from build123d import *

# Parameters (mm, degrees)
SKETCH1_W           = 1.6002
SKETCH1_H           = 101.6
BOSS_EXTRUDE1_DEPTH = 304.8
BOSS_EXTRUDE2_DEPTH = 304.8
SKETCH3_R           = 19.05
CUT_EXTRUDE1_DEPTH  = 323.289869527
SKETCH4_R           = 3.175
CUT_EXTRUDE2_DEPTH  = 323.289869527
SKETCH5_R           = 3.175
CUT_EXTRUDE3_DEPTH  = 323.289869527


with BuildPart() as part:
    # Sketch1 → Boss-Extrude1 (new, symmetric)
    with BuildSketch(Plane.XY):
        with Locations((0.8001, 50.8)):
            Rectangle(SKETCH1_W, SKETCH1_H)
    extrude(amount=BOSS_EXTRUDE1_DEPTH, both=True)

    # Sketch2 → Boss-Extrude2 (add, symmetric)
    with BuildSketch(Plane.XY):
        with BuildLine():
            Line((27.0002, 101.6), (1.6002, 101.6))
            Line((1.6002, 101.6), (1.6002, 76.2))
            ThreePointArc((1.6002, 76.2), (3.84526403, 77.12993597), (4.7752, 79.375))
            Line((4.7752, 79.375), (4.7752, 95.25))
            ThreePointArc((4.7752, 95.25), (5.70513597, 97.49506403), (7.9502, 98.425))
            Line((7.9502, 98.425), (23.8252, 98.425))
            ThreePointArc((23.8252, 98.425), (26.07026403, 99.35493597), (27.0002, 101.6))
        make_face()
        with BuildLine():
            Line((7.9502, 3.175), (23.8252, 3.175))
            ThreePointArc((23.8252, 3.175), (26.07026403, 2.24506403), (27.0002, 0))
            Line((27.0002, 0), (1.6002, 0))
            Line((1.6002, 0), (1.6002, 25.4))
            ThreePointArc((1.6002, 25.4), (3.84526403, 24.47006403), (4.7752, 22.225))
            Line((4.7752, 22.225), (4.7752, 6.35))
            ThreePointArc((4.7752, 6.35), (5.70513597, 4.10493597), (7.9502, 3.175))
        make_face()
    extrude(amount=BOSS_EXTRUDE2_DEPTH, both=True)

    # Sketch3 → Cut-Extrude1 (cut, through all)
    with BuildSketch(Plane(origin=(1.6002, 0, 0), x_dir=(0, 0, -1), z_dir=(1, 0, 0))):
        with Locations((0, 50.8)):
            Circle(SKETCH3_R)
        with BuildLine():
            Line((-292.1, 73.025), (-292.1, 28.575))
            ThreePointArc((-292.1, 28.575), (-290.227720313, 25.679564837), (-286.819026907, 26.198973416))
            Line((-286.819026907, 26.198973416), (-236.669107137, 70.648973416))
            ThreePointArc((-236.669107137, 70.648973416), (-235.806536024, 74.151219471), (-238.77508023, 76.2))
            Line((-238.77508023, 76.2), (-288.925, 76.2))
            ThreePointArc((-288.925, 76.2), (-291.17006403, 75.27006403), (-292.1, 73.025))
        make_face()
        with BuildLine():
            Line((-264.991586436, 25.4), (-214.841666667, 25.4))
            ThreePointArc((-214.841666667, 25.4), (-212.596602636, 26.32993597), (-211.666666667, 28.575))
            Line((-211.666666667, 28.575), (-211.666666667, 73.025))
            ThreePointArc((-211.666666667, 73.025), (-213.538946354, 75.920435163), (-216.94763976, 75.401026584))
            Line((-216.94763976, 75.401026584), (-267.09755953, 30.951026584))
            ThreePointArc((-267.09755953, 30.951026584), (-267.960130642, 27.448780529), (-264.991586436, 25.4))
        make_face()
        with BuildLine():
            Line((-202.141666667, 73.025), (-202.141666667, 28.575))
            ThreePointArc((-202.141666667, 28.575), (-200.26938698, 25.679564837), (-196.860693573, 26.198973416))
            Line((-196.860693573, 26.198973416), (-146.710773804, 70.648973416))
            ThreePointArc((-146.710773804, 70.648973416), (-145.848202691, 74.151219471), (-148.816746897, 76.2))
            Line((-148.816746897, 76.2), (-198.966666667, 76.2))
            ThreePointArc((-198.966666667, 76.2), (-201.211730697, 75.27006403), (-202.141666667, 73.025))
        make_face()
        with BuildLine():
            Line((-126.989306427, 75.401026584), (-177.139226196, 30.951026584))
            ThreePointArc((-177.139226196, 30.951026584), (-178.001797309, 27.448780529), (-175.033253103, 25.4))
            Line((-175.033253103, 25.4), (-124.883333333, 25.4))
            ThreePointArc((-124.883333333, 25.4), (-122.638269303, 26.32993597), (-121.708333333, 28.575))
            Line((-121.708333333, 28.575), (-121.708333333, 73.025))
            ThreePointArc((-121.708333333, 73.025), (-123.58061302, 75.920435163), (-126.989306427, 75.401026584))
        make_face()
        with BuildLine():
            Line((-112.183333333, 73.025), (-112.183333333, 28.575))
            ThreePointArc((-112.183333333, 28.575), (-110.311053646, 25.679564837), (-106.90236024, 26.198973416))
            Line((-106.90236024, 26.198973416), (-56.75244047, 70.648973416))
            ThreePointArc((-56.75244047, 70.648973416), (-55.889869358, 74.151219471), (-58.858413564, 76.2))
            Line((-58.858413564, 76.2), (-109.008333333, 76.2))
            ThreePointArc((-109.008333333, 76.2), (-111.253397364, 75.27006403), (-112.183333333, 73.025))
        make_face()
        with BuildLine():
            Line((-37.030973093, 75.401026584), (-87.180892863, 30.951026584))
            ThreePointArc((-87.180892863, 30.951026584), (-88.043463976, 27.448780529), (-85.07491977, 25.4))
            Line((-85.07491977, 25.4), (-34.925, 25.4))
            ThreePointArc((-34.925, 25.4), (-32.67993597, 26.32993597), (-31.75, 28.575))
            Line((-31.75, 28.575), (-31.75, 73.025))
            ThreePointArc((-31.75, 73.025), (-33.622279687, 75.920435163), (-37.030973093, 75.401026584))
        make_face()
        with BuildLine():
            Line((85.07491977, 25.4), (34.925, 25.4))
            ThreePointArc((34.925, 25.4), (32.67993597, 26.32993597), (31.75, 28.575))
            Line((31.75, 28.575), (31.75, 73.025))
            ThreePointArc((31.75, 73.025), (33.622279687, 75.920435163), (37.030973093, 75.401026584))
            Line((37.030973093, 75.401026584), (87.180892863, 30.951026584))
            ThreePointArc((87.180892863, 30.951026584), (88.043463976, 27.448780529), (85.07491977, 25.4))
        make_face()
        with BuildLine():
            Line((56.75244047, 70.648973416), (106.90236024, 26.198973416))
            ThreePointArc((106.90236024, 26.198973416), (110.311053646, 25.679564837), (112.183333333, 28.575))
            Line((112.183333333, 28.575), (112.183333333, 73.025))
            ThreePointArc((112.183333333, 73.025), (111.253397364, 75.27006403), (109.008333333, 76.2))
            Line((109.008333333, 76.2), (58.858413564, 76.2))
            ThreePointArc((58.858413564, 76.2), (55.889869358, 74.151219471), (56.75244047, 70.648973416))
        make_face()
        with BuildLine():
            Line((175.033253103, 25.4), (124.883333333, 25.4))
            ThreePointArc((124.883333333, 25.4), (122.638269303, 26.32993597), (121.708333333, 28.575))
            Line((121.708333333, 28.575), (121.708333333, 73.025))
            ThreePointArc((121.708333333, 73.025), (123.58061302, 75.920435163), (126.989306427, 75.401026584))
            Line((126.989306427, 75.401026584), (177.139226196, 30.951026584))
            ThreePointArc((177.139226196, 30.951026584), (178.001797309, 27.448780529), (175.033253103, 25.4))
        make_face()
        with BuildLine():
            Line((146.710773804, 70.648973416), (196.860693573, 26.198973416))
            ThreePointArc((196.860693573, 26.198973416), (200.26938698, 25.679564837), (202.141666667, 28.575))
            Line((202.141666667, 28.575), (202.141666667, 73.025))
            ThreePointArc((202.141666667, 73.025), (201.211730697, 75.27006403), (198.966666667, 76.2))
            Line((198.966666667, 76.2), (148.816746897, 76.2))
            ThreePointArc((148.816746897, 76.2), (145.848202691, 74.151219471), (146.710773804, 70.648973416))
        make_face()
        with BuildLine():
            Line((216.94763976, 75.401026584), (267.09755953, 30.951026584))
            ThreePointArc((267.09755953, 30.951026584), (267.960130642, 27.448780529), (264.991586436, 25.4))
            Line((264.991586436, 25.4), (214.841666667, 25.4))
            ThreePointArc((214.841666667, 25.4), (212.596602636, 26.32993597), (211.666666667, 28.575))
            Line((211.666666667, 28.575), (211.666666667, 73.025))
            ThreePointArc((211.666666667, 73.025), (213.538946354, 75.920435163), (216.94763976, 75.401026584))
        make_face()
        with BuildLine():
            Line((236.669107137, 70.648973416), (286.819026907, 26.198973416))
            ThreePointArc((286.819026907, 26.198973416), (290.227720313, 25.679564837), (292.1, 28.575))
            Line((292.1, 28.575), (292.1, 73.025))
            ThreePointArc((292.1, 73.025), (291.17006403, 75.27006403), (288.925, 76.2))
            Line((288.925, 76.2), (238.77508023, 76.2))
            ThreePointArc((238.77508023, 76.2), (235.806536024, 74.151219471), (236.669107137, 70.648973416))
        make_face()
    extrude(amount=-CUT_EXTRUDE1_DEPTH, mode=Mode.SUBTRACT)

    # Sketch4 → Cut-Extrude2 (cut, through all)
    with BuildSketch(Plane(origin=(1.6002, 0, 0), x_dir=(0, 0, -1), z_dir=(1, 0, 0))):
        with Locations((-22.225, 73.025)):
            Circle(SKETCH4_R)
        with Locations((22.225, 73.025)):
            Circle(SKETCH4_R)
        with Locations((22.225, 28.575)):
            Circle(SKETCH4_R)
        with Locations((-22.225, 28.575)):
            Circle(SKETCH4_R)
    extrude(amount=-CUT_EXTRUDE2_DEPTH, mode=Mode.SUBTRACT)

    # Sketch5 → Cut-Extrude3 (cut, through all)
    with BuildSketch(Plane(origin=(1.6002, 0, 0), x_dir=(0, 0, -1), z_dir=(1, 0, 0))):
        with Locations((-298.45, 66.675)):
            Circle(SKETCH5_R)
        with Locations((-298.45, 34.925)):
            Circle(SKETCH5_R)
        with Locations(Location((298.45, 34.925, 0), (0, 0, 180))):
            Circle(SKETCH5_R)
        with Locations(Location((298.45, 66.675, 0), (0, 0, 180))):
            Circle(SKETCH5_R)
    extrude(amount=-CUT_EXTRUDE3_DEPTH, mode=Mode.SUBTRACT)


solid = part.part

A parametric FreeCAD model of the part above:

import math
import FreeCAD as App
import Part
import Sketcher

V = App.Vector
Q = App.Units.Quantity

doc = App.newDocument("Part")
body = doc.addObject("PartDesign::Body", "Body")

sketch1 = doc.addObject("Sketcher::SketchObject", "Sketch")
body.addObject(sketch1)
sketch1.AttachmentSupport = (doc.XY_Plane, [""])
sketch1.MapMode = "FlatFace"
sketch1.addGeometry(Part.LineSegment(V(0, 101.6, 0), V(0, 0, 0)), False)
sketch1.addGeometry(Part.LineSegment(V(0, 0, 0), V(1.6, 0, 0)), False)
sketch1.addGeometry(Part.LineSegment(V(1.6, 0, 0), V(1.6, 101.6, 0)), False)
sketch1.addGeometry(Part.LineSegment(V(1.6, 101.6, 0), V(0, 101.6, 0)), False)
sketch1.addConstraint(Sketcher.Constraint("Coincident", 0, 2, 1, 1))
sketch1.addConstraint(Sketcher.Constraint("Coincident", 1, 2, 2, 1))
sketch1.addConstraint(Sketcher.Constraint("Coincident", 2, 2, 3, 1))
sketch1.addConstraint(Sketcher.Constraint("Coincident", 3, 2, 0, 1))
sketch1.addConstraint(Sketcher.Constraint("Vertical", 0))
sketch1.addConstraint(Sketcher.Constraint("Horizontal", 1))
sketch1.addConstraint(Sketcher.Constraint("Vertical", 2))
sketch1.addConstraint(Sketcher.Constraint("Horizontal", 3))
sketch1.addConstraint(Sketcher.Constraint("Coincident", 0, 2, -1, 1))
sketch1.addConstraint(Sketcher.Constraint("DistanceY", 0, 2, 0, 1, Q("4 in")))
sketch1.addConstraint(Sketcher.Constraint("DistanceX", 1, 1, 1, 2, Q("0.063 in")))
pad1 = doc.addObject("PartDesign::Pad", "Pad")
body.addObject(pad1)
pad1.Profile = sketch1
pad1.Length = Q("24 in")
pad1.Midplane = True

sketch2 = doc.addObject("Sketcher::SketchObject", "Sketch001")
body.addObject(sketch2)
sketch2.AttachmentSupport = (doc.XY_Plane, [""])
sketch2.MapMode = "FlatFace"
sketch2.addGeometry(Part.LineSegment(V(27, 101.6, 0), V(1.6, 101.6, 0)), False)
sketch2.addGeometry(Part.LineSegment(V(1.6, 101.6, 0), V(1.6, 76.2, 0)), False)
sketch2.addGeometry(Part.ArcOfCircle(Part.Circle(V(1.6, 79.4, 0), V(0, 0, 1), 3.2), math.radians(-90), math.radians(0)), False)
sketch2.addGeometry(Part.LineSegment(V(4.8, 79.4, 0), V(4.8, 95.2, 0)), False)
sketch2.addGeometry(Part.ArcOfCircle(Part.Circle(V(8, 95.2, 0), V(0, 0, 1), 3.2), math.radians(90), math.radians(180)), False)
sketch2.addGeometry(Part.LineSegment(V(8, 98.4, 0), V(23.8, 98.4, 0)), False)
sketch2.addGeometry(Part.ArcOfCircle(Part.Circle(V(23.8, 101.6, 0), V(0, 0, 1), 3.2), math.radians(-90), math.radians(0)), False)
sketch2.addGeometry(Part.LineSegment(V(23.8, 3.2, 0), V(8, 3.2, 0)), False)
sketch2.addGeometry(Part.ArcOfCircle(Part.Circle(V(8, 6.4, 0), V(0, 0, 1), 3.2), math.radians(-180), math.radians(-90)), False)
sketch2.addGeometry(Part.LineSegment(V(4.8, 6.3, 0), V(4.8, 22.2, 0)), False)
sketch2.addGeometry(Part.ArcOfCircle(Part.Circle(V(1.6, 22.2, 0), V(0, 0, 1), 3.2), math.radians(0), math.radians(90)), False)
sketch2.addGeometry(Part.LineSegment(V(1.6, 25.4, 0), V(1.6, 0, 0)), False)
sketch2.addGeometry(Part.LineSegment(V(1.6, 0, 0), V(27, 0, 0)), False)
sketch2.addGeometry(Part.ArcOfCircle(Part.Circle(V(23.8, 0, 0), V(0, 0, 1), 3.2), math.radians(0), math.radians(90)), False)
sketch2.addConstraint(Sketcher.Constraint("Coincident", 0, 2, 1, 1))
sketch2.addConstraint(Sketcher.Constraint("Coincident", 1, 2, 2, 1))
sketch2.addConstraint(Sketcher.Constraint("Tangent", 2, 2, 3, 1))
sketch2.addConstraint(Sketcher.Constraint("Tangent", 3, 2, 4, 2))
sketch2.addConstraint(Sketcher.Constraint("Tangent", 4, 1, 5, 1))
sketch2.addConstraint(Sketcher.Constraint("Tangent", 5, 2, 6, 1))
sketch2.addConstraint(Sketcher.Constraint("Coincident", 6, 2, 0, 1))
sketch2.addConstraint(Sketcher.Constraint("Tangent", 7, 2, 8, 2))
sketch2.addConstraint(Sketcher.Constraint("Tangent", 8, 1, 9, 1))
sketch2.addConstraint(Sketcher.Constraint("Tangent", 9, 2, 10, 1))
sketch2.addConstraint(Sketcher.Constraint("Coincident", 10, 2, 11, 1))
sketch2.addConstraint(Sketcher.Constraint("Coincident", 11, 2, 12, 1))
sketch2.addConstraint(Sketcher.Constraint("Coincident", 12, 2, 13, 1))
sketch2.addConstraint(Sketcher.Constraint("Tangent", 13, 2, 7, 1))
sketch2.addConstraint(Sketcher.Constraint("Horizontal", 0))
sketch2.addConstraint(Sketcher.Constraint("Vertical", 1))
sketch2.addConstraint(Sketcher.Constraint("Vertical", 3))
sketch2.addConstraint(Sketcher.Constraint("Horizontal", 5))
sketch2.addConstraint(Sketcher.Constraint("Horizontal", 7))
sketch2.addConstraint(Sketcher.Constraint("Vertical", 9))
sketch2.addConstraint(Sketcher.Constraint("Vertical", 11))
sketch2.addConstraint(Sketcher.Constraint("Horizontal", 12))
sketch2.addConstraint(Sketcher.Constraint("Equal", 2, 4))
sketch2.addConstraint(Sketcher.Constraint("Equal", 4, 6))
sketch2.addConstraint(Sketcher.Constraint("Equal", 6, 8))
sketch2.addConstraint(Sketcher.Constraint("Equal", 8, 10))
sketch2.addConstraint(Sketcher.Constraint("Equal", 10, 13))
sketch2.addConstraint(Sketcher.Constraint("PointOnObject", 13, 3, -1))
sketch2.addConstraint(Sketcher.Constraint("PointOnObject", 11, 2, -1))
sketch2.addConstraint(Sketcher.Constraint("Horizontal", 6, 3, 0, 2))
sketch2.addConstraint(Sketcher.Constraint("Vertical", 4, 3, 8, 3))
sketch2.addConstraint(Sketcher.Constraint("Vertical", 6, 3, 13, 3))
sketch2.addConstraint(Sketcher.Constraint("Vertical", 10, 3, 0, 2))
sketch2.addConstraint(Sketcher.Constraint("Vertical", 1, 2, 10, 2))
sketch2.addConstraint(Sketcher.Constraint("Equal", 12, 1))
sketch2.addConstraint(Sketcher.Constraint("Equal", 3, 9))
sketch2.addConstraint(Sketcher.Constraint("DistanceX", 0, 2, 0, 1, Q("1 in")))
sketch2.addConstraint(Sketcher.Constraint("DistanceY", -1, 1, 6, 3, Q("4 in")))
sketch2.addConstraint(Sketcher.Constraint("Radius", 2, Q("0.125 in")))
sketch2.addConstraint(Sketcher.Constraint("DistanceX", -1, 1, 2, 3, Q("0.063 in")))
pad2 = doc.addObject("PartDesign::Pad", "Pad001")
body.addObject(pad2)
pad2.Profile = sketch2
pad2.Length = Q("24 in")
pad2.Midplane = True

sketch3 = doc.addObject("Sketcher::SketchObject", "Sketch002")
body.addObject(sketch3)
sketch3.AttachmentSupport = (doc.YZ_Plane, [""])
sketch3.MapMode = "FlatFace"
sketch3.AttachmentOffset = App.Placement(V(0, 0, 0.063 * 25.4), App.Rotation())
sketch3.addGeometry(Part.Circle(V(50.8, 0, 0), V(0, 0, 1), 19.1), False)
sketch3.addGeometry(Part.LineSegment(V(73, 292.1, 0), V(28.6, 292.1, 0)), False)
sketch3.addGeometry(Part.ArcOfCircle(Part.Circle(V(28.6, 288.9, 0), V(0, 0, 1), 3.2), math.radians(90), math.radians(222)), False)
sketch3.addGeometry(Part.LineSegment(V(26.2, 286.8, 0), V(70.6, 236.7, 0)), False)
sketch3.addGeometry(Part.ArcOfCircle(Part.Circle(V(73, 238.8, 0), V(0, 0, 1), 3.2), math.radians(-138), math.radians(0)), False)
sketch3.addGeometry(Part.LineSegment(V(76.2, 238.8, 0), V(76.2, 288.9, 0)), False)
sketch3.addGeometry(Part.ArcOfCircle(Part.Circle(V(73, 288.9, 0), V(0, 0, 1), 3.2), math.radians(0), math.radians(90)), False)
sketch3.addGeometry(Part.LineSegment(V(25.4, 265, 0), V(25.4, 214.8, 0)), False)
sketch3.addGeometry(Part.ArcOfCircle(Part.Circle(V(28.6, 214.8, 0), V(0, 0, 1), 3.2), math.radians(180), math.radians(270)), False)
sketch3.addGeometry(Part.LineSegment(V(28.6, 211.7, 0), V(73, 211.7, 0)), False)
sketch3.addGeometry(Part.ArcOfCircle(Part.Circle(V(73, 214.8, 0), V(0, 0, 1), 3.2), math.radians(-90), math.radians(42)), False)
sketch3.addGeometry(Part.LineSegment(V(75.4, 216.9, 0), V(31, 267.1, 0)), False)
sketch3.addGeometry(Part.ArcOfCircle(Part.Circle(V(28.6, 265, 0), V(0, 0, 1), 3.2), math.radians(42), math.radians(180)), False)
sketch3.addGeometry(Part.LineSegment(V(73, 202.1, 0), V(28.6, 202.1, 0)), False)
sketch3.addGeometry(Part.ArcOfCircle(Part.Circle(V(28.6, 199, 0), V(0, 0, 1), 3.2), math.radians(90), math.radians(222)), False)
sketch3.addGeometry(Part.LineSegment(V(26.2, 196.9, 0), V(70.6, 146.7, 0)), False)
sketch3.addGeometry(Part.ArcOfCircle(Part.Circle(V(73, 148.8, 0), V(0, 0, 1), 3.2), math.radians(-138), math.radians(0)), False)
sketch3.addGeometry(Part.LineSegment(V(76.2, 148.8, 0), V(76.2, 199, 0)), False)
sketch3.addGeometry(Part.ArcOfCircle(Part.Circle(V(73, 199, 0), V(0, 0, 1), 3.2), math.radians(0), math.radians(90)), False)
sketch3.addGeometry(Part.LineSegment(V(75.4, 127, 0), V(31, 177.1, 0)), False)
sketch3.addGeometry(Part.ArcOfCircle(Part.Circle(V(28.6, 175, 0), V(0, 0, 1), 3.2), math.radians(42), math.radians(180)), False)
sketch3.addGeometry(Part.LineSegment(V(25.4, 175, 0), V(25.4, 124.9, 0)), False)
sketch3.addGeometry(Part.ArcOfCircle(Part.Circle(V(28.6, 124.9, 0), V(0, 0, 1), 3.2), math.radians(-180), math.radians(-90)), False)
sketch3.addGeometry(Part.LineSegment(V(28.6, 121.7, 0), V(73, 121.7, 0)), False)
sketch3.addGeometry(Part.ArcOfCircle(Part.Circle(V(73, 124.9, 0), V(0, 0, 1), 3.2), math.radians(-90), math.radians(42)), False)
sketch3.addGeometry(Part.LineSegment(V(73, 112.2, 0), V(28.6, 112.2, 0)), False)
sketch3.addGeometry(Part.ArcOfCircle(Part.Circle(V(28.6, 109, 0), V(0, 0, 1), 3.2), math.radians(90), math.radians(222)), False)
sketch3.addGeometry(Part.LineSegment(V(26.2, 106.9, 0), V(70.6, 56.8, 0)), False)
sketch3.addGeometry(Part.ArcOfCircle(Part.Circle(V(73, 58.9, 0), V(0, 0, 1), 3.2), math.radians(-138), math.radians(0)), False)
sketch3.addGeometry(Part.LineSegment(V(76.2, 58.9, 0), V(76.2, 109, 0)), False)
sketch3.addGeometry(Part.ArcOfCircle(Part.Circle(V(73, 109, 0), V(0, 0, 1), 3.2), math.radians(0), math.radians(90)), False)
sketch3.addGeometry(Part.LineSegment(V(75.4, 37, 0), V(31, 87.2, 0)), False)
sketch3.addGeometry(Part.ArcOfCircle(Part.Circle(V(28.6, 85.1, 0), V(0, 0, 1), 3.2), math.radians(42), math.radians(180)), False)
sketch3.addGeometry(Part.LineSegment(V(25.4, 85.1, 0), V(25.4, 34.9, 0)), False)
sketch3.addGeometry(Part.ArcOfCircle(Part.Circle(V(28.6, 34.9, 0), V(0, 0, 1), 3.2), math.radians(-180), math.radians(-90)), False)
sketch3.addGeometry(Part.LineSegment(V(28.6, 31.8, 0), V(73, 31.8, 0)), False)
sketch3.addGeometry(Part.ArcOfCircle(Part.Circle(V(73, 34.9, 0), V(0, 0, 1), 3.2), math.radians(-90), math.radians(42)), False)
sketch3.addGeometry(Part.LineSegment(V(25.4, -34.9, 0), V(25.4, -85.1, 0)), False)
sketch3.addGeometry(Part.ArcOfCircle(Part.Circle(V(28.6, -85.1, 0), V(0, 0, 1), 3.2), math.radians(180), math.radians(318)), False)
sketch3.addGeometry(Part.LineSegment(V(31, -87.2, 0), V(75.4, -37, 0)), False)
sketch3.addGeometry(Part.ArcOfCircle(Part.Circle(V(73, -34.9, 0), V(0, 0, 1), 3.2), math.radians(-42), math.radians(90)), False)
sketch3.addGeometry(Part.LineSegment(V(73, -31.8, 0), V(28.6, -31.8, 0)), False)
sketch3.addGeometry(Part.ArcOfCircle(Part.Circle(V(28.6, -34.9, 0), V(0, 0, 1), 3.2), math.radians(90), math.radians(180)), False)
sketch3.addGeometry(Part.LineSegment(V(70.6, -56.8, 0), V(26.2, -106.9, 0)), False)
sketch3.addGeometry(Part.ArcOfCircle(Part.Circle(V(28.6, -109, 0), V(0, 0, 1), 3.2), math.radians(138), math.radians(270)), False)
sketch3.addGeometry(Part.LineSegment(V(28.6, -112.2, 0), V(73, -112.2, 0)), False)
sketch3.addGeometry(Part.ArcOfCircle(Part.Circle(V(73, -109, 0), V(0, 0, 1), 3.2), math.radians(-90), math.radians(0)), False)
sketch3.addGeometry(Part.LineSegment(V(76.2, -109, 0), V(76.2, -58.9, 0)), False)
sketch3.addGeometry(Part.ArcOfCircle(Part.Circle(V(73, -58.9, 0), V(0, 0, 1), 3.2), math.radians(0), math.radians(138)), False)
sketch3.addGeometry(Part.LineSegment(V(25.4, -124.9, 0), V(25.4, -175, 0)), False)
sketch3.addGeometry(Part.ArcOfCircle(Part.Circle(V(28.6, -175, 0), V(0, 0, 1), 3.2), math.radians(180), math.radians(318)), False)
sketch3.addGeometry(Part.LineSegment(V(31, -177.1, 0), V(75.4, -127, 0)), False)
sketch3.addGeometry(Part.ArcOfCircle(Part.Circle(V(73, -124.9, 0), V(0, 0, 1), 3.2), math.radians(-42), math.radians(90)), False)
sketch3.addGeometry(Part.LineSegment(V(73, -121.7, 0), V(28.6, -121.7, 0)), False)
sketch3.addGeometry(Part.ArcOfCircle(Part.Circle(V(28.6, -124.9, 0), V(0, 0, 1), 3.2), math.radians(90), math.radians(180)), False)
sketch3.addGeometry(Part.LineSegment(V(70.6, -146.7, 0), V(26.2, -196.9, 0)), False)
sketch3.addGeometry(Part.ArcOfCircle(Part.Circle(V(28.6, -199, 0), V(0, 0, 1), 3.2), math.radians(138), math.radians(270)), False)
sketch3.addGeometry(Part.LineSegment(V(28.6, -202.1, 0), V(73, -202.1, 0)), False)
sketch3.addGeometry(Part.ArcOfCircle(Part.Circle(V(73, -199, 0), V(0, 0, 1), 3.2), math.radians(-90), math.radians(0)), False)
sketch3.addGeometry(Part.LineSegment(V(76.2, -199, 0), V(76.2, -148.8, 0)), False)
sketch3.addGeometry(Part.ArcOfCircle(Part.Circle(V(73, -148.8, 0), V(0, 0, 1), 3.2), math.radians(0), math.radians(138)), False)
sketch3.addGeometry(Part.LineSegment(V(31, -267.1, 0), V(75.4, -216.9, 0)), False)
sketch3.addGeometry(Part.ArcOfCircle(Part.Circle(V(73, -214.8, 0), V(0, 0, 1), 3.2), math.radians(-42), math.radians(90)), False)
sketch3.addGeometry(Part.LineSegment(V(73, -211.7, 0), V(28.6, -211.7, 0)), False)
sketch3.addGeometry(Part.ArcOfCircle(Part.Circle(V(28.6, -214.8, 0), V(0, 0, 1), 3.2), math.radians(90), math.radians(180)), False)
sketch3.addGeometry(Part.LineSegment(V(25.4, -214.8, 0), V(25.4, -265, 0)), False)
sketch3.addGeometry(Part.ArcOfCircle(Part.Circle(V(28.6, -265, 0), V(0, 0, 1), 3.2), math.radians(180), math.radians(318)), False)
sketch3.addGeometry(Part.LineSegment(V(70.6, -236.7, 0), V(26.2, -286.8, 0)), False)
sketch3.addGeometry(Part.ArcOfCircle(Part.Circle(V(28.6, -288.9, 0), V(0, 0, 1), 3.2), math.radians(138), math.radians(270)), False)
sketch3.addGeometry(Part.LineSegment(V(28.6, -292.1, 0), V(73, -292.1, 0)), False)
sketch3.addGeometry(Part.ArcOfCircle(Part.Circle(V(73, -288.9, 0), V(0, 0, 1), 3.2), math.radians(-90), math.radians(0)), False)
sketch3.addGeometry(Part.LineSegment(V(76.2, -288.9, 0), V(76.2, -238.8, 0)), False)
sketch3.addGeometry(Part.ArcOfCircle(Part.Circle(V(73, -238.8, 0), V(0, 0, 1), 3.2), math.radians(0), math.radians(138)), False)
sketch3.addConstraint(Sketcher.Constraint("Tangent", 1, 2, 2, 1))
sketch3.addConstraint(Sketcher.Constraint("Tangent", 2, 2, 3, 1))
sketch3.addConstraint(Sketcher.Constraint("Tangent", 3, 2, 4, 1))
sketch3.addConstraint(Sketcher.Constraint("Tangent", 4, 2, 5, 1))
sketch3.addConstraint(Sketcher.Constraint("Tangent", 5, 2, 6, 1))
sketch3.addConstraint(Sketcher.Constraint("Tangent", 6, 2, 1, 1))
sketch3.addConstraint(Sketcher.Constraint("Tangent", 7, 2, 8, 1))
sketch3.addConstraint(Sketcher.Constraint("Tangent", 8, 2, 9, 1))
sketch3.addConstraint(Sketcher.Constraint("Tangent", 9, 2, 10, 1))
sketch3.addConstraint(Sketcher.Constraint("Tangent", 10, 2, 11, 1))
sketch3.addConstraint(Sketcher.Constraint("Tangent", 11, 2, 12, 1))
sketch3.addConstraint(Sketcher.Constraint("Tangent", 12, 2, 7, 1))
sketch3.addConstraint(Sketcher.Constraint("Tangent", 13, 2, 14, 1))
sketch3.addConstraint(Sketcher.Constraint("Tangent", 14, 2, 15, 1))
sketch3.addConstraint(Sketcher.Constraint("Tangent", 15, 2, 16, 1))
sketch3.addConstraint(Sketcher.Constraint("Tangent", 16, 2, 17, 1))
sketch3.addConstraint(Sketcher.Constraint("Tangent", 17, 2, 18, 1))
sketch3.addConstraint(Sketcher.Constraint("Tangent", 18, 2, 13, 1))
sketch3.addConstraint(Sketcher.Constraint("Tangent", 19, 2, 20, 1))
sketch3.addConstraint(Sketcher.Constraint("Tangent", 20, 2, 21, 1))
sketch3.addConstraint(Sketcher.Constraint("Tangent", 21, 2, 22, 1))
sketch3.addConstraint(Sketcher.Constraint("Tangent", 22, 2, 23, 1))
sketch3.addConstraint(Sketcher.Constraint("Tangent", 23, 2, 24, 1))
sketch3.addConstraint(Sketcher.Constraint("Tangent", 24, 2, 19, 1))
sketch3.addConstraint(Sketcher.Constraint("Tangent", 25, 2, 26, 1))
sketch3.addConstraint(Sketcher.Constraint("Tangent", 26, 2, 27, 1))
sketch3.addConstraint(Sketcher.Constraint("Tangent", 27, 2, 28, 1))
sketch3.addConstraint(Sketcher.Constraint("Tangent", 28, 2, 29, 1))
sketch3.addConstraint(Sketcher.Constraint("Tangent", 29, 2, 30, 1))
sketch3.addConstraint(Sketcher.Constraint("Tangent", 30, 2, 25, 1))
sketch3.addConstraint(Sketcher.Constraint("Tangent", 31, 2, 32, 1))
sketch3.addConstraint(Sketcher.Constraint("Tangent", 32, 2, 33, 1))
sketch3.addConstraint(Sketcher.Constraint("Tangent", 33, 2, 34, 1))
sketch3.addConstraint(Sketcher.Constraint("Tangent", 34, 2, 35, 1))
sketch3.addConstraint(Sketcher.Constraint("Tangent", 35, 2, 36, 1))
sketch3.addConstraint(Sketcher.Constraint("Tangent", 36, 2, 31, 1))
sketch3.addConstraint(Sketcher.Constraint("Tangent", 37, 2, 38, 1))
sketch3.addConstraint(Sketcher.Constraint("Tangent", 38, 2, 39, 1))
sketch3.addConstraint(Sketcher.Constraint("Tangent", 39, 2, 40, 1))
sketch3.addConstraint(Sketcher.Constraint("Tangent", 40, 2, 41, 1))
sketch3.addConstraint(Sketcher.Constraint("Tangent", 41, 2, 42, 1))
sketch3.addConstraint(Sketcher.Constraint("Tangent", 42, 2, 37, 1))
sketch3.addConstraint(Sketcher.Constraint("Tangent", 43, 2, 44, 1))
sketch3.addConstraint(Sketcher.Constraint("Tangent", 44, 2, 45, 1))
sketch3.addConstraint(Sketcher.Constraint("Tangent", 45, 2, 46, 1))
sketch3.addConstraint(Sketcher.Constraint("Tangent", 46, 2, 47, 1))
sketch3.addConstraint(Sketcher.Constraint("Tangent", 47, 2, 48, 1))
sketch3.addConstraint(Sketcher.Constraint("Tangent", 48, 2, 43, 1))
sketch3.addConstraint(Sketcher.Constraint("Tangent", 49, 2, 50, 1))
sketch3.addConstraint(Sketcher.Constraint("Tangent", 50, 2, 51, 1))
sketch3.addConstraint(Sketcher.Constraint("Tangent", 51, 2, 52, 1))
sketch3.addConstraint(Sketcher.Constraint("Tangent", 52, 2, 53, 1))
sketch3.addConstraint(Sketcher.Constraint("Tangent", 53, 2, 54, 1))
sketch3.addConstraint(Sketcher.Constraint("Tangent", 54, 2, 49, 1))
sketch3.addConstraint(Sketcher.Constraint("Tangent", 55, 2, 56, 1))
sketch3.addConstraint(Sketcher.Constraint("Tangent", 56, 2, 57, 1))
sketch3.addConstraint(Sketcher.Constraint("Tangent", 57, 2, 58, 1))
sketch3.addConstraint(Sketcher.Constraint("Tangent", 58, 2, 59, 1))
sketch3.addConstraint(Sketcher.Constraint("Tangent", 59, 2, 60, 1))
sketch3.addConstraint(Sketcher.Constraint("Tangent", 60, 2, 55, 1))
sketch3.addConstraint(Sketcher.Constraint("Tangent", 61, 2, 62, 1))
sketch3.addConstraint(Sketcher.Constraint("Tangent", 62, 2, 63, 1))
sketch3.addConstraint(Sketcher.Constraint("Tangent", 63, 2, 64, 1))
sketch3.addConstraint(Sketcher.Constraint("Tangent", 64, 2, 65, 1))
sketch3.addConstraint(Sketcher.Constraint("Tangent", 65, 2, 66, 1))
sketch3.addConstraint(Sketcher.Constraint("Tangent", 66, 2, 61, 1))
sketch3.addConstraint(Sketcher.Constraint("Tangent", 67, 2, 68, 1))
sketch3.addConstraint(Sketcher.Constraint("Tangent", 68, 2, 69, 1))
sketch3.addConstraint(Sketcher.Constraint("Tangent", 69, 2, 70, 1))
sketch3.addConstraint(Sketcher.Constraint("Tangent", 70, 2, 71, 1))
sketch3.addConstraint(Sketcher.Constraint("Tangent", 71, 2, 72, 1))
sketch3.addConstraint(Sketcher.Constraint("Tangent", 72, 2, 67, 1))
sketch3.addConstraint(Sketcher.Constraint("Horizontal", 1))
sketch3.addConstraint(Sketcher.Constraint("Vertical", 5))
sketch3.addConstraint(Sketcher.Constraint("Vertical", 7))
sketch3.addConstraint(Sketcher.Constraint("Horizontal", 9))
sketch3.addConstraint(Sketcher.Constraint("Horizontal", 13))
sketch3.addConstraint(Sketcher.Constraint("Vertical", 17))
sketch3.addConstraint(Sketcher.Constraint("Vertical", 21))
sketch3.addConstraint(Sketcher.Constraint("Horizontal", 23))
sketch3.addConstraint(Sketcher.Constraint("Horizontal", 25))
sketch3.addConstraint(Sketcher.Constraint("Vertical", 29))
sketch3.addConstraint(Sketcher.Constraint("Vertical", 33))
sketch3.addConstraint(Sketcher.Constraint("Horizontal", 35))
sketch3.addConstraint(Sketcher.Constraint("Vertical", 37))
sketch3.addConstraint(Sketcher.Constraint("Horizontal", 41))
sketch3.addConstraint(Sketcher.Constraint("Horizontal", 45))
sketch3.addConstraint(Sketcher.Constraint("Vertical", 47))
sketch3.addConstraint(Sketcher.Constraint("Vertical", 49))
sketch3.addConstraint(Sketcher.Constraint("Horizontal", 53))
sketch3.addConstraint(Sketcher.Constraint("Horizontal", 57))
sketch3.addConstraint(Sketcher.Constraint("Vertical", 59))
sketch3.addConstraint(Sketcher.Constraint("Horizontal", 63))
sketch3.addConstraint(Sketcher.Constraint("Vertical", 65))
sketch3.addConstraint(Sketcher.Constraint("Horizontal", 69))
sketch3.addConstraint(Sketcher.Constraint("Vertical", 71))
sketch3.addConstraint(Sketcher.Constraint("Equal", 2, 4))
sketch3.addConstraint(Sketcher.Constraint("Equal", 4, 6))
sketch3.addConstraint(Sketcher.Constraint("Equal", 6, 8))
sketch3.addConstraint(Sketcher.Constraint("Equal", 8, 10))
sketch3.addConstraint(Sketcher.Constraint("Equal", 10, 12))
sketch3.addConstraint(Sketcher.Constraint("Equal", 12, 14))
sketch3.addConstraint(Sketcher.Constraint("Equal", 14, 16))
sketch3.addConstraint(Sketcher.Constraint("Equal", 16, 18))
sketch3.addConstraint(Sketcher.Constraint("Equal", 18, 20))
sketch3.addConstraint(Sketcher.Constraint("Equal", 20, 22))
sketch3.addConstraint(Sketcher.Constraint("Equal", 22, 24))
sketch3.addConstraint(Sketcher.Constraint("Equal", 24, 26))
sketch3.addConstraint(Sketcher.Constraint("Equal", 26, 28))
sketch3.addConstraint(Sketcher.Constraint("Equal", 28, 30))
sketch3.addConstraint(Sketcher.Constraint("Equal", 30, 32))
sketch3.addConstraint(Sketcher.Constraint("Equal", 32, 34))
sketch3.addConstraint(Sketcher.Constraint("Equal", 34, 36))
sketch3.addConstraint(Sketcher.Constraint("Equal", 36, 38))
sketch3.addConstraint(Sketcher.Constraint("Equal", 38, 40))
sketch3.addConstraint(Sketcher.Constraint("Equal", 40, 42))
sketch3.addConstraint(Sketcher.Constraint("Equal", 42, 44))
sketch3.addConstraint(Sketcher.Constraint("Equal", 44, 46))
sketch3.addConstraint(Sketcher.Constraint("Equal", 46, 48))
sketch3.addConstraint(Sketcher.Constraint("Equal", 48, 50))
sketch3.addConstraint(Sketcher.Constraint("Equal", 50, 52))
sketch3.addConstraint(Sketcher.Constraint("Equal", 52, 54))
sketch3.addConstraint(Sketcher.Constraint("Equal", 54, 56))
sketch3.addConstraint(Sketcher.Constraint("Equal", 56, 58))
sketch3.addConstraint(Sketcher.Constraint("Equal", 58, 60))
sketch3.addConstraint(Sketcher.Constraint("Equal", 60, 62))
sketch3.addConstraint(Sketcher.Constraint("Equal", 62, 64))
sketch3.addConstraint(Sketcher.Constraint("Equal", 64, 66))
sketch3.addConstraint(Sketcher.Constraint("Equal", 66, 68))
sketch3.addConstraint(Sketcher.Constraint("Equal", 68, 70))
sketch3.addConstraint(Sketcher.Constraint("Equal", 70, 72))
sketch3.addConstraint(Sketcher.Constraint("Symmetric", 32, 3, 38, 3, -1))
sketch3.addConstraint(Sketcher.Constraint("Symmetric", 36, 3, 40, 3, -1))
sketch3.addConstraint(Sketcher.Constraint("Symmetric", 26, 3, 44, 3, -1))
sketch3.addConstraint(Sketcher.Constraint("Symmetric", 28, 3, 48, 3, -1))
sketch3.addConstraint(Sketcher.Constraint("Symmetric", 20, 3, 50, 3, -1))
sketch3.addConstraint(Sketcher.Constraint("Symmetric", 24, 3, 52, 3, -1))
sketch3.addConstraint(Sketcher.Constraint("Symmetric", 14, 3, 56, 3, -1))
sketch3.addConstraint(Sketcher.Constraint("Symmetric", 16, 3, 60, 3, -1))
sketch3.addConstraint(Sketcher.Constraint("Symmetric", 10, 3, 62, 3, -1))
sketch3.addConstraint(Sketcher.Constraint("Symmetric", 12, 3, 66, 3, -1))
sketch3.addConstraint(Sketcher.Constraint("Symmetric", 2, 3, 68, 3, -1))
sketch3.addConstraint(Sketcher.Constraint("Symmetric", 4, 3, 72, 3, -1))
sketch3.addConstraint(Sketcher.Constraint("PointOnObject", 0, 3, -1))
sketch3.addConstraint(Sketcher.Constraint("Parallel", 3, 11))
sketch3.addConstraint(Sketcher.Constraint("Parallel", 11, 15))
sketch3.addConstraint(Sketcher.Constraint("Parallel", 15, 19))
sketch3.addConstraint(Sketcher.Constraint("Parallel", 19, 27))
sketch3.addConstraint(Sketcher.Constraint("Parallel", 27, 31))
sketch3.addConstraint(Sketcher.Constraint("Vertical", 2, 3, 8, 3))
sketch3.addConstraint(Sketcher.Constraint("Vertical", 6, 3, 10, 3))
sketch3.addConstraint(Sketcher.Constraint("Vertical", 12, 3, 14, 3))
sketch3.addConstraint(Sketcher.Constraint("Vertical", 10, 3, 16, 3))
sketch3.addConstraint(Sketcher.Constraint("Vertical", 14, 3, 20, 3))
sketch3.addConstraint(Sketcher.Constraint("Vertical", 18, 3, 24, 3))
sketch3.addConstraint(Sketcher.Constraint("Vertical", 22, 3, 26, 3))
sketch3.addConstraint(Sketcher.Constraint("Vertical", 24, 3, 28, 3))
sketch3.addConstraint(Sketcher.Constraint("Vertical", 26, 3, 32, 3))
sketch3.addConstraint(Sketcher.Constraint("Vertical", 30, 3, 36, 3))
sketch3.addConstraint(Sketcher.Constraint("Diameter", 0, Q("1.5 in")))
sketch3.addConstraint(Sketcher.Constraint("DistanceX", -1, 1, 0, 3, Q("2 in")))
sketch3.addConstraint(Sketcher.Constraint("DistanceX", -1, 1, 4, 2, Q("3 in")))
sketch3.addConstraint(Sketcher.Constraint("DistanceX", -1, 1, 7, 2, Q("1 in")))
sketch3.addConstraint(Sketcher.Constraint("Radius", 2, Q("0.125 in")))
sketch3.addConstraint(Sketcher.Constraint("DistanceY", -1, 1, 1, 2, Q("11.5 in")))
sketch3.addConstraint(Sketcher.Constraint("DistanceY", -1, 1, 34, 2, Q("1.25 in")))
sketch3.addConstraint(Sketcher.Constraint("DistanceY", 5, 1, 5, 2, Q("50.14992 mm")))
sketch3.addConstraint(Sketcher.Constraint("DistanceY", -1, 1, 10, 2, Q("216.94764 mm")))
sketch3.addConstraint(Sketcher.Constraint("DistanceY", -1, 1, 26, 2, Q("106.90236 mm")))
sketch3.addConstraint(Sketcher.Constraint("DistanceY", -1, 1, 14, 3, Q("198.966667 mm")))
sketch3.addConstraint(Sketcher.Constraint("DistanceY", -1, 1, 20, 3, Q("175.033253 mm")))
pocket1 = doc.addObject("PartDesign::Pocket", "Pocket")
body.addObject(pocket1)
pocket1.Profile = sketch3
pocket1.Type = "ThroughAll"

sketch4 = doc.addObject("Sketcher::SketchObject", "Sketch003")
body.addObject(sketch4)
sketch4.AttachmentSupport = (doc.YZ_Plane, [""])
sketch4.MapMode = "FlatFace"
sketch4.AttachmentOffset = App.Placement(V(0, 0, 0.063 * 25.4), App.Rotation())
sketch4.addGeometry(Part.Circle(V(73, 22.2, 0), V(0, 0, 1), 3.2), False)
sketch4.addGeometry(Part.Circle(V(73, -22.2, 0), V(0, 0, 1), 3.2), False)
sketch4.addGeometry(Part.Circle(V(28.6, -22.2, 0), V(0, 0, 1), 3.2), False)
sketch4.addGeometry(Part.Circle(V(28.6, 22.2, 0), V(0, 0, 1), 3.2), False)
sketch4.addConstraint(Sketcher.Constraint("Equal", 0, 1))
sketch4.addConstraint(Sketcher.Constraint("Equal", 1, 2))
sketch4.addConstraint(Sketcher.Constraint("Equal", 2, 3))
sketch4.addConstraint(Sketcher.Constraint("Symmetric", 0, 3, 1, 3, -1))
sketch4.addConstraint(Sketcher.Constraint("Symmetric", 2, 3, 3, 3, -1))
sketch4.addConstraint(Sketcher.Constraint("Horizontal", 1, 3, 2, 3))
sketch4.addConstraint(Sketcher.Constraint("Diameter", 0, Q("0.25 in")))
sketch4.addConstraint(Sketcher.Constraint("DistanceY", 1, 3, 0, 3, Q("1.75 in")))
sketch4.addConstraint(Sketcher.Constraint("DistanceX", 2, 3, 1, 3, Q("1.75 in")))
sketch4.addConstraint(Sketcher.Constraint("DistanceX", -1, 1, 0, 3, Q("2.875 in")))
pocket2 = doc.addObject("PartDesign::Pocket", "Pocket001")
body.addObject(pocket2)
pocket2.Profile = sketch4
pocket2.Type = "ThroughAll"

sketch5 = doc.addObject("Sketcher::SketchObject", "Sketch004")
body.addObject(sketch5)
sketch5.AttachmentSupport = (doc.YZ_Plane, [""])
sketch5.MapMode = "FlatFace"
sketch5.AttachmentOffset = App.Placement(V(0, 0, 0.063 * 25.4), App.Rotation())
sketch5.addGeometry(Part.Circle(V(66.7, 298.4, 0), V(0, 0, 1), 3.2), False)
sketch5.addGeometry(Part.Circle(V(34.9, 298.4, 0), V(0, 0, 1), 3.2), False)
sketch5.addGeometry(Part.Circle(V(34.9, -298.4, 0), V(0, 0, 1), 3.2), False)
sketch5.addGeometry(Part.Circle(V(66.7, -298.4, 0), V(0, 0, 1), 3.2), False)
sketch5.addConstraint(Sketcher.Constraint("Equal", 0, 1))
sketch5.addConstraint(Sketcher.Constraint("Equal", 1, 2))
sketch5.addConstraint(Sketcher.Constraint("Equal", 2, 3))
sketch5.addConstraint(Sketcher.Constraint("Symmetric", 1, 3, 2, 3, -1))
sketch5.addConstraint(Sketcher.Constraint("Symmetric", 0, 3, 3, 3, -1))
sketch5.addConstraint(Sketcher.Constraint("Horizontal", 0, 3, 1, 3))
sketch5.addConstraint(Sketcher.Constraint("Diameter", 0, Q("0.25 in")))
sketch5.addConstraint(Sketcher.Constraint("DistanceY", 2, 3, 1, 3, Q("23.5 in")))
sketch5.addConstraint(Sketcher.Constraint("DistanceX", 1, 3, 0, 3, Q("1.25 in")))
sketch5.addConstraint(Sketcher.Constraint("DistanceX", -1, 1, 0, 3, Q("2.625 in")))
pocket3 = doc.addObject("PartDesign::Pocket", "Pocket002")
body.addObject(pocket3)
pocket3.Profile = sketch5
pocket3.Type = "ThroughAll"

doc.recompute()
